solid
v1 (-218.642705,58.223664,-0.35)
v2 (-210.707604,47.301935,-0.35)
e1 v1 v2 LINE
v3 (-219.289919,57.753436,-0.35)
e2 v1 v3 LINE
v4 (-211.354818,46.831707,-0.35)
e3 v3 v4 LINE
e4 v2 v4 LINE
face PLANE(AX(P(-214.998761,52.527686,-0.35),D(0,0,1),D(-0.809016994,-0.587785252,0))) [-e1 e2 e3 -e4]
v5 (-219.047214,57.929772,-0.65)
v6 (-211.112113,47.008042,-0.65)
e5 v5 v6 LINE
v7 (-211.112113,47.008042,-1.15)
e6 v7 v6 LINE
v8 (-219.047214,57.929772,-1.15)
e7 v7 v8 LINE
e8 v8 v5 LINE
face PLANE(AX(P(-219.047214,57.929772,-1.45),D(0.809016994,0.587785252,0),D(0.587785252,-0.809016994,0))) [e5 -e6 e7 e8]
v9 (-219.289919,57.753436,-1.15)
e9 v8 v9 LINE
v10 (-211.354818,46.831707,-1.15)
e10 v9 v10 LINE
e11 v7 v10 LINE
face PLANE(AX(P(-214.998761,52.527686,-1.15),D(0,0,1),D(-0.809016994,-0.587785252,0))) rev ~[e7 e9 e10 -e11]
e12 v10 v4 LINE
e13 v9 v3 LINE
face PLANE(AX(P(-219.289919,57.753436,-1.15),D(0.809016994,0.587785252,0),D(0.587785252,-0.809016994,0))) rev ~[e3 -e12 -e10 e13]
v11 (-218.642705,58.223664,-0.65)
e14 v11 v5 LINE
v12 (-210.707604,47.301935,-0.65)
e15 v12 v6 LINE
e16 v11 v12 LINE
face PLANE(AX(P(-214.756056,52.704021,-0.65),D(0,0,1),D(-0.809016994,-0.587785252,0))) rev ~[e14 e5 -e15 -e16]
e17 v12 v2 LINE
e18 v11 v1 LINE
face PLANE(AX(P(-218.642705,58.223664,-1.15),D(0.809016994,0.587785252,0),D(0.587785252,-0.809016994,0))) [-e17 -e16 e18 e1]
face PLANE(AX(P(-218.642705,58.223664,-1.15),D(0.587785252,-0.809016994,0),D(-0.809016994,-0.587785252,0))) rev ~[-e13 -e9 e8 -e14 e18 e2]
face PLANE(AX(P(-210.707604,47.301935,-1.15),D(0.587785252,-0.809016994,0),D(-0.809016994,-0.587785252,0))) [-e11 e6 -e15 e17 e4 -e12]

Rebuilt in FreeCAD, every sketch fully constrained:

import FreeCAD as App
import Part
import Sketcher
from FreeCAD import Vector


def add_polygon(sketch, points):
    """Adds a closed chain of lines whose ends are joined by coincident constraints."""
    first, n = sketch.GeometryCount, len(points)
    for a, b in zip(points, points[1:] + points[:1]):
        sketch.addGeometry(Part.LineSegment(App.Vector(*a, 0), App.Vector(*b, 0)), False)
    for i in range(n):
        sketch.addConstraint(Sketcher.Constraint("Coincident", first + i, 2, first + (i + 1) % n, 1))

doc = App.newDocument("Part")
body = doc.addObject("PartDesign::Body", "Body")

# Sketch on XY plane
sketch1 = doc.addObject("Sketcher::SketchObject", "Sketch")
body.addObject(sketch1)
sketch1.AttachmentSupport = (doc.XY_Plane, [""])
sketch1.MapMode = "FlatFace"
add_polygon(sketch1, [(0, 13.5), (0, 0), (0.8, 0), (0.8, 13.5)])  # lines 0-3
sketch1.addConstraint([
    Sketcher.Constraint("Vertical", 0),
    Sketcher.Constraint("Horizontal", 1),
    Sketcher.Constraint("Vertical", 2),
    Sketcher.Constraint("Horizontal", 3),
    Sketcher.Constraint("Coincident", 0, 2, -1, 1),
    Sketcher.Constraint("DistanceX", 1, 1, 1, 2, 0.8),
    Sketcher.Constraint("DistanceY", 0, 2, 0, 1, 13.5),
])
pad1 = doc.addObject("PartDesign::Pad", "Pad")
body.addObject(pad1)
pad1.Profile = sketch1
pad1.Length = 0.8
body2 = doc.addObject("PartDesign::Body", "Body001")

# Sketch on XY plane
sketch2 = doc.addObject("Sketcher::SketchObject", "Sketch001")
body2.addObject(sketch2)
sketch2.AttachmentSupport = (doc.getObject("XY_Plane001"), [""])
sketch2.MapMode = "FlatFace"
sketch2.AttachmentOffset = App.Placement(Vector(0, 0, 0.3), App.Rotation())
add_polygon(sketch2, [(0.3, 13.5), (0.3, 0), (1.1, 0), (1.1, 13.5)])  # lines 0-3
sketch2.addConstraint([
    Sketcher.Constraint("Vertical", 0),
    Sketcher.Constraint("Horizontal", 1),
    Sketcher.Constraint("Vertical", 2),
    Sketcher.Constraint("Horizontal", 3),
    Sketcher.Constraint("PointOnObject", 0, 2, -1),
    Sketcher.Constraint("DistanceX", 1, 1, 1, 2, 0.8),
    Sketcher.Constraint("DistanceY", 0, 2, 0, 1, 13.5),
    Sketcher.Constraint("DistanceX", -1, 1, 0, 2, 0.3),
])
pad2 = doc.addObject("PartDesign::Pad", "Pad001")
body2.addObject(pad2)
pad2.Profile = sketch2
pad2.Length = 0.8
doc.recompute()

boolean = doc.addObject("PartDesign::Boolean", "Boolean")
body2.addObject(boolean)
boolean.Type = "Cut"
boolean.addObjects([body])
body3 = doc.addObject("PartDesign::Body", "Body002")
doc.recompute()

body2.Placement = App.Placement(Vector(-218.4, 58.4, -1.45), App.Rotation(Vector(0, 0, 1), 216))
boolean2 = doc.addObject("PartDesign::Boolean", "Boolean001")
body3.addObject(boolean2)
boolean2.Type = "Fuse"
boolean2.addObjects([body2])

doc.recompute()
